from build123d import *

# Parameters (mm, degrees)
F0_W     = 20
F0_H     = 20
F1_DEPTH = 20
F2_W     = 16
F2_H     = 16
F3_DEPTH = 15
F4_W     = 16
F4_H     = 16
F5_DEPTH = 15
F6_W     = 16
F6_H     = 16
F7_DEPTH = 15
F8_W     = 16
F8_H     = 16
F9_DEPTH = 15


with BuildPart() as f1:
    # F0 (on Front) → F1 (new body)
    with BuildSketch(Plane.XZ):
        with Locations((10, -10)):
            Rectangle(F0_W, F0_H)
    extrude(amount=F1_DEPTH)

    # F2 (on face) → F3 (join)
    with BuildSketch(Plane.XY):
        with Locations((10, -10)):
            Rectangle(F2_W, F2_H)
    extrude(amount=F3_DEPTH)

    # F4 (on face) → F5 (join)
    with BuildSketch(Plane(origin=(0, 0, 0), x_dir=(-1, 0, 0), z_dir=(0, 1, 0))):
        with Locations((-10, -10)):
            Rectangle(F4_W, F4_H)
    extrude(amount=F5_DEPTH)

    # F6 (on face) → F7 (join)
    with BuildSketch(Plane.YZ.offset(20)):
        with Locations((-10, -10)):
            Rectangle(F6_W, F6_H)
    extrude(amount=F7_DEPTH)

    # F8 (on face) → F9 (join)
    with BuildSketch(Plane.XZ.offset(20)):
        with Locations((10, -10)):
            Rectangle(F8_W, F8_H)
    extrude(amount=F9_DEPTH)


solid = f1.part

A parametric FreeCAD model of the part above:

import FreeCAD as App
import Part
import Sketcher

V = App.Vector


def add_polygon(sketch, points):
    """Adds a closed chain of lines whose ends are joined by coincident constraints."""
    first, n = sketch.GeometryCount, len(points)
    for a, b in zip(points, points[1:] + points[:1]):
        sketch.addGeometry(Part.LineSegment(App.Vector(*a, 0), App.Vector(*b, 0)), False)
    for i in range(n):
        sketch.addConstraint(Sketcher.Constraint("Coincident", first + i, 2, first + (i + 1) % n, 1))

doc = App.newDocument("Part")
body = doc.addObject("PartDesign::Body", "Body")

# Sketch on XZ plane
sketch1 = body.newObject("Sketcher::SketchObject", "Sketch")
sketch1.AttachmentSupport = (doc.getObject("XZ_Plane"), [""])
sketch1.MapMode = "FlatFace"
add_polygon(sketch1, [(0, 0), (0, -20), (20, -20), (20, 0)])  # lines 0-3
sketch1.addConstraint([
    Sketcher.Constraint("Vertical", 0),
    Sketcher.Constraint("Horizontal", 1),
    Sketcher.Constraint("Vertical", 2),
    Sketcher.Constraint("Horizontal", 3),
    Sketcher.Constraint("Coincident", 3, 2, -1, 1),
    Sketcher.Constraint("Equal", 3, 0),
    Sketcher.Constraint("DistanceX", 1, 1, 1, 2, 20.0),
])
pad1 = body.newObject("PartDesign::Pad", "Pad")
pad1.Profile = sketch1
pad1.Length = 20

# Sketch on XY plane
sketch2 = body.newObject("Sketcher::SketchObject", "Sketch001")
sketch2.AttachmentSupport = (doc.getObject("XY_Plane"), [""])
sketch2.MapMode = "FlatFace"
add_polygon(sketch2, [(2, -2), (2, -18), (18, -18), (18, -2)])  # lines 0-3
sketch2.addConstraint([
    Sketcher.Constraint("Vertical", 0),
    Sketcher.Constraint("Horizontal", 1),
    Sketcher.Constraint("Vertical", 2),
    Sketcher.Constraint("Horizontal", 3),
    Sketcher.Constraint("Equal", 3, 0),
    Sketcher.Constraint("DistanceX", 1, 1, 1, 2, 16.0),
    Sketcher.Constraint("DistanceX", -1, 1, 0, 2, 2.0),
    Sketcher.Constraint("DistanceY", 0, 2, -1, 1, 18.0),
])
pad2 = body.newObject("PartDesign::Pad", "Pad001")
pad2.Profile = sketch2
pad2.Length = 15

# Sketch on XZ plane
sketch3 = body.newObject("Sketcher::SketchObject", "Sketch002")
sketch3.AttachmentSupport = (doc.getObject("XZ_Plane"), [""])
sketch3.MapMode = "FlatFace"
add_polygon(sketch3, [(18, -2), (18, -18), (2, -18), (2, -2)])  # lines 0-3
sketch3.addConstraint([
    Sketcher.Constraint("Vertical", 0),
    Sketcher.Constraint("Horizontal", 1),
    Sketcher.Constraint("Vertical", 2),
    Sketcher.Constraint("Horizontal", 3),
    Sketcher.Constraint("Equal", 3, 0),
    Sketcher.Constraint("DistanceX", 1, 2, 1, 1, 16.0),
    Sketcher.Constraint("DistanceX", -1, 1, 0, 2, 18.0),
    Sketcher.Constraint("DistanceY", 0, 2, -1, 1, 18.0),
])
pad3 = body.newObject("PartDesign::Pad", "Pad002")
pad3.Profile = sketch3
pad3.Length = 15
pad3.Reversed = True

# Sketch on YZ plane
sketch4 = body.newObject("Sketcher::SketchObject", "Sketch003")
sketch4.AttachmentSupport = (doc.getObject("YZ_Plane"), [""])
sketch4.MapMode = "FlatFace"
sketch4.AttachmentOffset = App.Placement(V(0, 0, 20), App.Rotation())
add_polygon(sketch4, [(-18, -2), (-18, -18), (-2, -18), (-2, -2)])  # lines 0-3
sketch4.addConstraint([
    Sketcher.Constraint("Vertical", 0),
    Sketcher.Constraint("Horizontal", 1),
    Sketcher.Constraint("Vertical", 2),
    Sketcher.Constraint("Horizontal", 3),
    Sketcher.Constraint("Equal", 3, 0),
    Sketcher.Constraint("DistanceX", 1, 1, 1, 2, 16.0),
    Sketcher.Constraint("DistanceX", 0, 2, -1, 1, 18.0),
    Sketcher.Constraint("DistanceY", 0, 2, -1, 1, 18.0),
])
pad4 = body.newObject("PartDesign::Pad", "Pad003")
pad4.Profile = sketch4
pad4.Length = 15

# Sketch on XZ plane
sketch5 = body.newObject("Sketcher::SketchObject", "Sketch004")
sketch5.AttachmentSupport = (doc.getObject("XZ_Plane"), [""])
sketch5.MapMode = "FlatFace"
sketch5.AttachmentOffset = App.Placement(V(0, 0, 20), App.Rotation())
add_polygon(sketch5, [(2, -2), (2, -18), (18, -18), (18, -2)])  # lines 0-3
sketch5.addConstraint([
    Sketcher.Constraint("Vertical", 0),
    Sketcher.Constraint("Horizontal", 1),
    Sketcher.Constraint("Vertical", 2),
    Sketcher.Constraint("Horizontal", 3),
    Sketcher.Constraint("Equal", 3, 0),
    Sketcher.Constraint("DistanceX", 1, 1, 1, 2, 16.0),
    Sketcher.Constraint("DistanceX", -1, 1, 0, 2, 2.0),
    Sketcher.Constraint("DistanceY", 0, 2, -1, 1, 18.0),
])
pad5 = body.newObject("PartDesign::Pad", "Pad004")
pad5.Profile = sketch5
pad5.Length = 15

doc.recompute()
